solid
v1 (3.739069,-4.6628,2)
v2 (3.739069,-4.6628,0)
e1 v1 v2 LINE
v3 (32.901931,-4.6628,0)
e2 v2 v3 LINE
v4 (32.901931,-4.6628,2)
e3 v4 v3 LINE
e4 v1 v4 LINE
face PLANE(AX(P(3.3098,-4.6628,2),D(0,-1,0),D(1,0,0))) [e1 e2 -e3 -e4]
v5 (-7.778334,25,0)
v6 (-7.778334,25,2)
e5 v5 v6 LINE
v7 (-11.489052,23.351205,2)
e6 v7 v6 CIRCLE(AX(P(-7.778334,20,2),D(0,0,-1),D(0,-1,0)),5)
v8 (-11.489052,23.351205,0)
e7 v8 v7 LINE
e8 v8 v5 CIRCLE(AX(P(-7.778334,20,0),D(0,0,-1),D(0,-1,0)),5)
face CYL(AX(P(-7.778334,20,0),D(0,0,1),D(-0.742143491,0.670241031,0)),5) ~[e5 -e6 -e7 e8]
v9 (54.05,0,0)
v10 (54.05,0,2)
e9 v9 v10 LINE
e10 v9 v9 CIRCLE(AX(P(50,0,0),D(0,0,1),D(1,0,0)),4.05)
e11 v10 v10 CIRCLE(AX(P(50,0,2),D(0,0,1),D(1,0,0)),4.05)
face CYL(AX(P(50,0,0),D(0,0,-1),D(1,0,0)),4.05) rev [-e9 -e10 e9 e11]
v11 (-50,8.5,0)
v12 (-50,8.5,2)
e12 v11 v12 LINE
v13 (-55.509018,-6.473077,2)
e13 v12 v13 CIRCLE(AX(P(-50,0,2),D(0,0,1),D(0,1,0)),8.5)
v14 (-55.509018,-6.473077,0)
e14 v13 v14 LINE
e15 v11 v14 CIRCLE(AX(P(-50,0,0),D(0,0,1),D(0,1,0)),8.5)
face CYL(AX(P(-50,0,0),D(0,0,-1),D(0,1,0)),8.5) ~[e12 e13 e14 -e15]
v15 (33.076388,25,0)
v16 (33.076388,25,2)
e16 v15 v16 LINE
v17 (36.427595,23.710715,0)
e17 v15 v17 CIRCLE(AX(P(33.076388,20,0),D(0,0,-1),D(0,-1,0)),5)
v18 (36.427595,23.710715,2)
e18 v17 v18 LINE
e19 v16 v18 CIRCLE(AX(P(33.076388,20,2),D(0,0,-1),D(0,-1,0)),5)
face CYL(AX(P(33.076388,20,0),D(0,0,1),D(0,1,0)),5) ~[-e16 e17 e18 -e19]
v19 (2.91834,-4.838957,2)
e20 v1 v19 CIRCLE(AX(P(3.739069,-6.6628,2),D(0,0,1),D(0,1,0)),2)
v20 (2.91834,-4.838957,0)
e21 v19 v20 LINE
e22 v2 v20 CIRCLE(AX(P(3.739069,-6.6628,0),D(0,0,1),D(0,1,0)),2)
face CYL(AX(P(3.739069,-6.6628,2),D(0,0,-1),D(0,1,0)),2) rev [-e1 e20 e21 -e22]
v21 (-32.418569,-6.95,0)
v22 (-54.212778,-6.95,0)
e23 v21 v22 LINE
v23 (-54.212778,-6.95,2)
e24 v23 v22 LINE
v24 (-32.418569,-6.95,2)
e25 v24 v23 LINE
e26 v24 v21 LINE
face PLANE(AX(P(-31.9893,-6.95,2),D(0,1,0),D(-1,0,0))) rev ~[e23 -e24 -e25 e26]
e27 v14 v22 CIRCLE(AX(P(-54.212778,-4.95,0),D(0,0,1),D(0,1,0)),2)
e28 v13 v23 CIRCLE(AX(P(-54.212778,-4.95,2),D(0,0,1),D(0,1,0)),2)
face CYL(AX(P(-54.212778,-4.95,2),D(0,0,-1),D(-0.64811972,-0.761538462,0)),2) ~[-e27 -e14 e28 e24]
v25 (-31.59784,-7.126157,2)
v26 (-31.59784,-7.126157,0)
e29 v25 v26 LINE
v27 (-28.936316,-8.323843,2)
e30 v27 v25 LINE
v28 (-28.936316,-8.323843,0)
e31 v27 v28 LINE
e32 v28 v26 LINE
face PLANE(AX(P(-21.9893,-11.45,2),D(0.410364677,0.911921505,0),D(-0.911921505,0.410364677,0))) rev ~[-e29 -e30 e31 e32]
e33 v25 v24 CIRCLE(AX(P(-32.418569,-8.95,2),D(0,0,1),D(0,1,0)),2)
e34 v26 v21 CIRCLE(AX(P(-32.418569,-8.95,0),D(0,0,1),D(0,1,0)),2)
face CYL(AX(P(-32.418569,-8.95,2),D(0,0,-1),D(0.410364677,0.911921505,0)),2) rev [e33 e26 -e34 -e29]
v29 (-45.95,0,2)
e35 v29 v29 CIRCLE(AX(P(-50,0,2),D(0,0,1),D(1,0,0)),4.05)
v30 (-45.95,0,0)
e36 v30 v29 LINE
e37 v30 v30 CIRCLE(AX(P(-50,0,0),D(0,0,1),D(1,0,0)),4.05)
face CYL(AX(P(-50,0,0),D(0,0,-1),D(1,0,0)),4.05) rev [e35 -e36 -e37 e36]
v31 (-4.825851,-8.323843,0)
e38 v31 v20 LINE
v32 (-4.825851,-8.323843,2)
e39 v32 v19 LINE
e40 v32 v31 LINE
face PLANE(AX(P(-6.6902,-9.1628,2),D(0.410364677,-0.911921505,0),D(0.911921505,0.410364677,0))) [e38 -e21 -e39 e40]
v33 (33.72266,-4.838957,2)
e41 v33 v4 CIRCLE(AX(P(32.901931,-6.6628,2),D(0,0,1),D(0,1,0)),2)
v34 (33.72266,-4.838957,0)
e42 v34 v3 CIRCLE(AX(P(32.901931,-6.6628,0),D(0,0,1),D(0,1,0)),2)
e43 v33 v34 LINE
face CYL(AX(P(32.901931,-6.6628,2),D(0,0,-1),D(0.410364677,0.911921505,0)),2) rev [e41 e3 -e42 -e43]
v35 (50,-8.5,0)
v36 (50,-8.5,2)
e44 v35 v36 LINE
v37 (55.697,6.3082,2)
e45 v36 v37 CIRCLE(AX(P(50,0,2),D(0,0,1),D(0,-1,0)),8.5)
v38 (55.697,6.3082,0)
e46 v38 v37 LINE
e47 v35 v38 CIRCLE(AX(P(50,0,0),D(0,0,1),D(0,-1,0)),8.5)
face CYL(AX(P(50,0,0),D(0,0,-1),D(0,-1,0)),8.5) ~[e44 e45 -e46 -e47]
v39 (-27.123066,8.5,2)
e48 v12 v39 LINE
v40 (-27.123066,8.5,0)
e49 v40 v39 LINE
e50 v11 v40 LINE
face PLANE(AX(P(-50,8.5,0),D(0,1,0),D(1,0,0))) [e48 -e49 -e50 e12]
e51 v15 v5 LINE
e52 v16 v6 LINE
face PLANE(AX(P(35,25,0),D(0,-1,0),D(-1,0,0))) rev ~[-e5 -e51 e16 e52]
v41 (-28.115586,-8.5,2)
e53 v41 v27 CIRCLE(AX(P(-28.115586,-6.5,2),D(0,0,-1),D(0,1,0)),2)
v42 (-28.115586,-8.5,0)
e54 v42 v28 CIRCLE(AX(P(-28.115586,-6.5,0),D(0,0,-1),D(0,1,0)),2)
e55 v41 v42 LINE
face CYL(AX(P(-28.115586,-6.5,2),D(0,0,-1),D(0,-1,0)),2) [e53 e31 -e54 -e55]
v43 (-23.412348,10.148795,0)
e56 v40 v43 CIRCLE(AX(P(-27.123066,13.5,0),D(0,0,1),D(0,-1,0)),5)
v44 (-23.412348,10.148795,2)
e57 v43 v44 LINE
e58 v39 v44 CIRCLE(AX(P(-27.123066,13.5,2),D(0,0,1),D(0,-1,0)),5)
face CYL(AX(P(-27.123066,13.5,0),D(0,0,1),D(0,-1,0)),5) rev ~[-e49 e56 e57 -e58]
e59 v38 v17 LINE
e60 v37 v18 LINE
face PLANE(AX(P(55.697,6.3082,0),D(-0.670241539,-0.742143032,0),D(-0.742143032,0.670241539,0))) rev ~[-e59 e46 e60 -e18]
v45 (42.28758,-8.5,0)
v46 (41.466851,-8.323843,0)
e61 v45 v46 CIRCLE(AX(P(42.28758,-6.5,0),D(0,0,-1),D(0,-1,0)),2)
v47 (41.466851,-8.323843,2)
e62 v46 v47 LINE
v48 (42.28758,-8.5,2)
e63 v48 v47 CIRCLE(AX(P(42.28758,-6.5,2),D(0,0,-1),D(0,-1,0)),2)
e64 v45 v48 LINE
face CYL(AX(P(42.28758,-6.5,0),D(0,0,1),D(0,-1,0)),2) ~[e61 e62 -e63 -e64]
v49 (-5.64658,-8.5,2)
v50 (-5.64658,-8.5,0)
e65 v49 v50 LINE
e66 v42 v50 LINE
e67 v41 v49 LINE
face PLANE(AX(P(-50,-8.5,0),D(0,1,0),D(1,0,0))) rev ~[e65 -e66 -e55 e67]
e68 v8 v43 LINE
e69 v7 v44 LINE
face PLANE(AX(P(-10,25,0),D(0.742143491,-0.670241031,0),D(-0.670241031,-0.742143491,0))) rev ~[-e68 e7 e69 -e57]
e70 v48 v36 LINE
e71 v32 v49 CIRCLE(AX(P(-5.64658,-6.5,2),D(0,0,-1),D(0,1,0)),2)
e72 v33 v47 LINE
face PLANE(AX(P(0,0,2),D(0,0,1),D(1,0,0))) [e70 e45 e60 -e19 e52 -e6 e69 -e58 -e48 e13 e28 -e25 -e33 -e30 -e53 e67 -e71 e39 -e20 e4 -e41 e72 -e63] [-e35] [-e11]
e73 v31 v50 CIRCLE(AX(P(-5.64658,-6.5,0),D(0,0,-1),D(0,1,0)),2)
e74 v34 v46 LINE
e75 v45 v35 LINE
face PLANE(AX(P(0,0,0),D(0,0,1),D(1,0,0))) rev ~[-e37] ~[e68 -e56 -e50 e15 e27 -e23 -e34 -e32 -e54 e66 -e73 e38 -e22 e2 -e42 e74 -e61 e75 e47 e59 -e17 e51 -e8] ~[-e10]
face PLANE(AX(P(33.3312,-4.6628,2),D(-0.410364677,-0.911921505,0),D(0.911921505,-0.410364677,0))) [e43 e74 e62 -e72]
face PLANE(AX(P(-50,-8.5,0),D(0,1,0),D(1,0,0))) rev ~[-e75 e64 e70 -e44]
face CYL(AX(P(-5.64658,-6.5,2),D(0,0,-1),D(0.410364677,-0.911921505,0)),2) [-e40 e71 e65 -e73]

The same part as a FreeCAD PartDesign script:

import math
import FreeCAD as App
import Part
import Sketcher

V = App.Vector


def edges_at(feature, points):
    """Names of the edges that pass closest to the given points."""
    edges = feature.Shape.Edges
    near = lambda p: min(range(len(edges)), key=lambda i: edges[i].distToShape(Part.Vertex(*p))[0])
    return sorted({f"Edge{near(p) + 1}" for p in points})

doc = App.newDocument("Part")
body = doc.addObject("PartDesign::Body", "Body")

# Sketch on XY plane
sketch1 = body.newObject("Sketcher::SketchObject", "Sketch")
sketch1.AttachmentSupport = (doc.getObject("XY_Plane"), [""])
sketch1.MapMode = "FlatFace"
sketch1.addGeometry([
    Part.LineSegment(V(-24.9, 8.5, 0), V(-50, 8.5, 0)),  # 0
    Part.ArcOfCircle(Part.Circle(V(-50, 0, 0), V(0, 0, 1), 8.5), math.radians(90), math.radians(270)),  # 1
    Part.LineSegment(V(-50, -8.5, 0), V(50, -8.5, 0)),  # 2
    Part.ArcOfCircle(Part.Circle(V(50, 0, 0), V(0, 0, 1), 8.5), math.radians(-90), math.radians(48)),  # 3
    Part.LineSegment(V(55.7, 6.3, 0), V(35, 25, 0)),  # 4
    Part.LineSegment(V(35, 25, 0), V(-10, 25, 0)),  # 5
    Part.LineSegment(V(-10, 25, 0), V(-24.9, 8.5, 0)),  # 6
    Part.Circle(V(-50, 0, 0), V(0, 0, 1), 4),  # 7
    Part.Circle(V(50, 0, 0), V(0, 0, 1), 4),  # 8
    Part.Circle(V(12.5, 21.5, 0), V(0, 0, 1), 1.6),  # 9
    Part.Circle(V(32.5, 21.5, 0), V(0, 0, 1), 1.6),  # 10
    Part.Circle(V(-7.5, 21.5, 0), V(0, 0, 1), 1.6),  # 11
], False)
sketch1.addConstraint([
    Sketcher.Constraint("Tangent", 0, 2, 1, 1),
    Sketcher.Constraint("Tangent", 1, 2, 2, 1),
    Sketcher.Constraint("Tangent", 2, 2, 3, 1),
    Sketcher.Constraint("Tangent", 3, 2, 4, 1),
    Sketcher.Constraint("Coincident", 4, 2, 5, 1),
    Sketcher.Constraint("Coincident", 5, 2, 6, 1),
    Sketcher.Constraint("Coincident", 6, 2, 0, 1),
    Sketcher.Constraint("Horizontal", 0),
    Sketcher.Constraint("Horizontal", 2),
    Sketcher.Constraint("Horizontal", 5),
    Sketcher.Constraint("Coincident", 7, 3, 1, 3),
    Sketcher.Constraint("Coincident", 8, 3, 3, 3),
    Sketcher.Constraint("Equal", 1, 3),
    Sketcher.Constraint("Equal", 7, 8),
    Sketcher.Constraint("Equal", 9, 10),
    Sketcher.Constraint("Equal", 10, 11),
    Sketcher.Constraint("Symmetric", 1, 3, 3, 3, -1, 1),
    Sketcher.Constraint("Perpendicular", 4, 6),
    Sketcher.Constraint("Horizontal", 9, 3, 10, 3),
    Sketcher.Constraint("Horizontal", 10, 3, 11, 3),
    Sketcher.Constraint("Diameter", 7, 8.1),
    Sketcher.Constraint("Diameter", 9, 3.1),
    Sketcher.Constraint("Radius", 1, 8.5),
    Sketcher.Constraint("DistanceX", 2, 1, 2, 2, 100.0),
    Sketcher.Constraint("DistanceX", 5, 2, 5, 1, 45.0),
    Sketcher.Constraint("DistanceX", 4, 2, 3, 3, 15.0),
    Sketcher.Constraint("DistanceX", 10, 3, 4, 2, 2.5),
    Sketcher.Constraint("DistanceX", 5, 2, 11, 3, 2.5),
    Sketcher.Constraint("DistanceY", -1, 1, 4, 2, 25.0),
    Sketcher.Constraint("DistanceX", 9, 3, 10, 3, 20.0),
    Sketcher.Constraint("DistanceY", 0, 2, 11, 3, 13.0),
])
pad1 = body.newObject("PartDesign::Pad", "Pad")
pad1.Profile = sketch1
pad1.Length = 2
doc.recompute()

fillet = body.newObject("PartDesign::Fillet", "Fillet")
fillet.Base = (pad1, edges_at(pad1, [(-24.901, 8.5, 1), (-10, 25, 1), (35, 25, 1)]))
fillet.Radius = 5

# Sketch on XY plane
sketch2 = body.newObject("Sketcher::SketchObject", "Sketch001")
sketch2.AttachmentSupport = (doc.getObject("XY_Plane"), [""])
sketch2.MapMode = "FlatFace"
sketch2.AttachmentOffset = App.Placement(V(0, 0, 2), App.Rotation())
sketch2.addGeometry([
    Part.LineSegment(V(-22, -11.4, 0), V(-32, -7, 0)),  # 0
    Part.LineSegment(V(-32, -7, 0), V(-62, -7, 0)),  # 1
    Part.LineSegment(V(-62, -7, 0), V(-72, -11.4, 0)),  # 2
    Part.LineSegment(V(-72, -11.4, 0), V(-77, -11.4, 0)),  # 3
    Part.LineSegment(V(-77, -11.4, 0), V(-77, -12.4, 0)),  # 4
    Part.LineSegment(V(-77, -12.4, 0), V(-17, -12.4, 0)),  # 5
    Part.LineSegment(V(-17, -12.4, 0), V(-17, -11.4, 0)),  # 6
    Part.LineSegment(V(-17, -11.4, 0), V(-22, -11.4, 0)),  # 7
    Part.LineSegment(V(3.3, -4.7, 0), V(-6.7, -9.2, 0)),  # 8
    Part.LineSegment(V(-6.7, -9.2, 0), V(-11.7, -9.2, 0)),  # 9
    Part.LineSegment(V(-11.7, -9.2, 0), V(-11.7, -10.2, 0)),  # 10
    Part.LineSegment(V(-11.7, -10.2, 0), V(48.3, -10.2, 0)),  # 11
    Part.LineSegment(V(48.3, -10.2, 0), V(48.3, -9.2, 0)),  # 12
    Part.LineSegment(V(48.3, -9.2, 0), V(43.3, -9.2, 0)),  # 13
    Part.LineSegment(V(43.3, -9.2, 0), V(33.3, -4.7, 0)),  # 14
    Part.LineSegment(V(33.3, -4.7, 0), V(3.3, -4.7, 0)),  # 15
], False)
sketch2.addConstraint([
    Sketcher.Constraint("Coincident", 0, 2, 1, 1),
    Sketcher.Constraint("Coincident", 1, 2, 2, 1),
    Sketcher.Constraint("Coincident", 2, 2, 3, 1),
    Sketcher.Constraint("Coincident", 3, 2, 4, 1),
    Sketcher.Constraint("Coincident", 4, 2, 5, 1),
    Sketcher.Constraint("Coincident", 5, 2, 6, 1),
    Sketcher.Constraint("Coincident", 6, 2, 7, 1),
    Sketcher.Constraint("Coincident", 7, 2, 0, 1),
    Sketcher.Constraint("Coincident", 8, 2, 9, 1),
    Sketcher.Constraint("Coincident", 9, 2, 10, 1),
    Sketcher.Constraint("Coincident", 10, 2, 11, 1),
    Sketcher.Constraint("Coincident", 11, 2, 12, 1),
    Sketcher.Constraint("Coincident", 12, 2, 13, 1),
    Sketcher.Constraint("Coincident", 13, 2, 14, 1),
    Sketcher.Constraint("Coincident", 14, 2, 15, 1),
    Sketcher.Constraint("Coincident", 15, 2, 8, 1),
    Sketcher.Constraint("Horizontal", 1),
    Sketcher.Constraint("Horizontal", 3),
    Sketcher.Constraint("Vertical", 4),
    Sketcher.Constraint("Horizontal", 5),
    Sketcher.Constraint("Vertical", 6),
    Sketcher.Constraint("Horizontal", 7),
    Sketcher.Constraint("Horizontal", 9),
    Sketcher.Constraint("Vertical", 10),
    Sketcher.Constraint("Horizontal", 11),
    Sketcher.Constraint("Vertical", 12),
    Sketcher.Constraint("Horizontal", 13),
    Sketcher.Constraint("Horizontal", 15),
    Sketcher.Constraint("Parallel", 2, 8),
    Sketcher.Constraint("Parallel", 0, 14),
    Sketcher.Constraint("Horizontal", 3, 2, 6, 2),
    Sketcher.Constraint("Horizontal", 9, 2, 12, 2),
    Sketcher.Constraint("Equal", 3, 7),
    Sketcher.Constraint("Equal", 7, 9),
    Sketcher.Constraint("Equal", 5, 11),
    Sketcher.Constraint("Equal", 9, 13),
    Sketcher.Constraint("Equal", 1, 15),
    Sketcher.Constraint("Equal", 6, 10),
    Sketcher.Constraint("Equal", 0, 2),
    Sketcher.Constraint("DistanceX", 3, 2, 3, 1, 5.0),
    Sketcher.Constraint("DistanceY", 4, 2, 4, 1, 1.0),
    Sketcher.Constraint("DistanceX", 2, 2, 1, 2, 10.0),
    Sketcher.Constraint("DistanceY", 2, 2, 1, 2, 4.5),
    Sketcher.Constraint("DistanceY", 0, 2, -1, 1, 6.95),
    Sketcher.Constraint("DistanceX", 1, 2, 1, 1, 30.0214),
    Sketcher.Constraint("DistanceX", 6, 2, 8, 2, 10.299),
    Sketcher.Constraint("DistanceX", 0, 2, -1, 1, 31.9893),
    Sketcher.Constraint("DistanceY", 8, 2, -1, 1, 9.1628),
])
pocket1 = body.newObject("PartDesign::Pocket", "Pocket")
pocket1.Profile = sketch2
pocket1.Length = 10
doc.recompute()

fillet2 = body.newObject("PartDesign::Fillet", "Fillet001")
fillet2.Base = (pocket1, edges_at(pocket1, [
    (-28.545, -8.5, 1),
    (-31.989, -6.95, 1),
    (-5.217, -8.5, 1),
    (3.31, -4.663, 1),
    (41.858, -8.5, 1),
    (33.331, -4.663, 1),
    (-54.894, -6.95, 1),
]))
fillet2.Radius = 2

# Sketch on XY plane
sketch3 = body.newObject("Sketcher::SketchObject", "Sketch002")
sketch3.AttachmentSupport = (doc.getObject("XY_Plane"), [""])
sketch3.MapMode = "FlatFace"
sketch3.addGeometry([
    Part.Circle(V(-7.5, 21.5, 0), V(0, 0, 1), 1.6),
    Part.Circle(V(12.5, 21.5, 0), V(0, 0, 1), 1.6),
    Part.Circle(V(32.5, 21.5, 0), V(0, 0, 1), 1.6),
], False)
sketch3.addConstraint([
    Sketcher.Constraint("Equal", 0, 1),
    Sketcher.Constraint("Equal", 1, 2),
    Sketcher.Constraint("Horizontal", 0, 3, 1, 3),
    Sketcher.Constraint("Horizontal", 1, 3, 2, 3),
    Sketcher.Constraint("Diameter", 0, 3.1),
    Sketcher.Constraint("DistanceX", 0, 3, 1, 3, 20.0),
    Sketcher.Constraint("DistanceX", 1, 3, 2, 3, 20.0),
    Sketcher.Constraint("DistanceX", 0, 3, -1, 1, 7.5),
    Sketcher.Constraint("DistanceY", -1, 1, 0, 3, 21.5),
])
pad2 = body.newObject("PartDesign::Pad", "Pad001")
pad2.Profile = sketch3
pad2.Length = 2

doc.recompute()
